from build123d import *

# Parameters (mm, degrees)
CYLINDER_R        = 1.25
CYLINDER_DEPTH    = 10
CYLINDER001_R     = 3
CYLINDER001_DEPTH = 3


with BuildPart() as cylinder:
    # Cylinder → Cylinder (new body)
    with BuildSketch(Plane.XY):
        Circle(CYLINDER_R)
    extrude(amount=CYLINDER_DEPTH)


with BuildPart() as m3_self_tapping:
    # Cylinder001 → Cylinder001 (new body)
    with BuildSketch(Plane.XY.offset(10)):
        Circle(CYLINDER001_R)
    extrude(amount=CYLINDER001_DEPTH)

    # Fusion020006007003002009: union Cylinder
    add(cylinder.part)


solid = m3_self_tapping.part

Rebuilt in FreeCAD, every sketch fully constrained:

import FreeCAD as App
import Part
import Sketcher

V = App.Vector

doc = App.newDocument("Part")
params = doc.addObject("Spreadsheet::Sheet", "Params")
for row, (alias, value) in enumerate([
    ("sketch1_diameter", "2.5 mm"),
    ("pad1_length", "10 mm"),
    ("sketch2_diameter", "6 mm"),
    ("pad2_length", "3 mm"),
], start=1):
    params.set(f"A{row}", alias)
    params.set(f"B{row}", "=" + value)
    params.setAlias(f"B{row}", alias)

body = doc.addObject("PartDesign::Body", "Body")

# Sketch on XY plane
sketch1 = doc.addObject("Sketcher::SketchObject", "Sketch")
body.addObject(sketch1)
sketch1.AttachmentSupport = (doc.XY_Plane, [""])
sketch1.MapMode = "FlatFace"
sketch1.addGeometry(Part.Circle(V(0, 0, 0), V(0, 0, 1), 1.25), False)
sketch1.addConstraint(Sketcher.Constraint("Coincident", 0, 3, -1, 1))
sketch1.addConstraint(Sketcher.Constraint("Diameter", 0, 2.5))
sketch1.setExpression("Constraints[1]", "Params.sketch1_diameter")
pad1 = doc.addObject("PartDesign::Pad", "Pad")
body.addObject(pad1)
pad1.Profile = sketch1
pad1.setExpression("Length", "Params.pad1_length")
body2 = doc.addObject("PartDesign::Body", "Body001")

# Sketch on XY plane
sketch2 = doc.addObject("Sketcher::SketchObject", "Sketch001")
body2.addObject(sketch2)
sketch2.AttachmentSupport = (doc.getObject("XY_Plane001"), [""])
sketch2.MapMode = "FlatFace"
sketch2.AttachmentOffset = App.Placement(V(0, 0, 10), App.Rotation())
sketch2.addGeometry(Part.Circle(V(0, 0, 0), V(0, 0, 1), 3), False)
sketch2.addConstraint(Sketcher.Constraint("Coincident", 0, 3, -1, 1))
sketch2.addConstraint(Sketcher.Constraint("Diameter", 0, 6.0))
sketch2.setExpression("Constraints[1]", "Params.sketch2_diameter")
pad2 = doc.addObject("PartDesign::Pad", "Pad001")
body2.addObject(pad2)
pad2.Profile = sketch2
pad2.setExpression("Length", "Params.pad2_length")
doc.recompute()

boolean = doc.addObject("PartDesign::Boolean", "Boolean")
body2.addObject(boolean)
boolean.Type = "Fuse"
boolean.addObjects([body])

doc.recompute()
